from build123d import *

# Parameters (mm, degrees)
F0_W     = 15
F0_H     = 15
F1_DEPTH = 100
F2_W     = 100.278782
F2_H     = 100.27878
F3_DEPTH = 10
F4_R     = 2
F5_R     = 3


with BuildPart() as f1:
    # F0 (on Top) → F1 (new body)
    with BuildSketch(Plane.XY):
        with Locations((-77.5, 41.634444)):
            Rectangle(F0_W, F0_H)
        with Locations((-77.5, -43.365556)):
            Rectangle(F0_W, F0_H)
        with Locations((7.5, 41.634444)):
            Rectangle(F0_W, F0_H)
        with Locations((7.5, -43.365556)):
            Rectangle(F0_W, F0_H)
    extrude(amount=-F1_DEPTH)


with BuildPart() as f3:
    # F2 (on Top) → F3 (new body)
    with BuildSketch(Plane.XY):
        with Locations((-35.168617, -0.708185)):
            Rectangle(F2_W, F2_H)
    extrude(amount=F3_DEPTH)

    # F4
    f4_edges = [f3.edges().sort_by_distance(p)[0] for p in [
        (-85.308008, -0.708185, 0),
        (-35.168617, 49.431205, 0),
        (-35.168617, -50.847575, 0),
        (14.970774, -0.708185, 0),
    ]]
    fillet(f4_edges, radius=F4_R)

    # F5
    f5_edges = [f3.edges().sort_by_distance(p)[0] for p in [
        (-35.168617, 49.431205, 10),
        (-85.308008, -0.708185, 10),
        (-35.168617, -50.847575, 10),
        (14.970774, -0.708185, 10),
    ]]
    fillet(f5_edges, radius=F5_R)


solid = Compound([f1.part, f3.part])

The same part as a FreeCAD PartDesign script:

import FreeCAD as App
import Part
import Sketcher
from FreeCAD import Vector


def edges_at(feature, points):
    """Names of the edges that pass closest to the given points."""
    edges = feature.Shape.Edges
    near = lambda p: min(range(len(edges)), key=lambda i: edges[i].distToShape(Part.Vertex(*p))[0])
    return sorted({f"Edge{near(p) + 1}" for p in points})

doc = App.newDocument("Part")
body = doc.addObject("PartDesign::Body", "Body")
body.AllowCompound = True

sketch1 = doc.addObject("Sketcher::SketchObject", "Sketch")
body.addObject(sketch1)
sketch1.AttachmentSupport = (doc.XY_Plane, [""])
sketch1.MapMode = "FlatFace"
sketch1.addGeometry([
    Part.LineSegment(Vector(-85, 49, 0), Vector(-85, 34, 0)),
    Part.LineSegment(Vector(-85, 34, 0), Vector(-70, 34, 0)),
    Part.LineSegment(Vector(-70, 34, 0), Vector(-70, 49, 0)),
    Part.LineSegment(Vector(-70, 49, 0), Vector(-85, 49, 0)),
    Part.LineSegment(Vector(-85, -36, 0), Vector(-85, -51, 0)),
    Part.LineSegment(Vector(-85, -51, 0), Vector(-70, -51, 0)),
    Part.LineSegment(Vector(-70, -51, 0), Vector(-70, -36, 0)),
    Part.LineSegment(Vector(-70, -36, 0), Vector(-85, -36, 0)),
    Part.LineSegment(Vector(0, 49, 0), Vector(0, 34, 0)),
    Part.LineSegment(Vector(0, 34, 0), Vector(15, 34, 0)),
    Part.LineSegment(Vector(15, 34, 0), Vector(15, 49, 0)),
    Part.LineSegment(Vector(15, 49, 0), Vector(0, 49, 0)),
    Part.LineSegment(Vector(0, -36, 0), Vector(0, -51, 0)),
    Part.LineSegment(Vector(0, -51, 0), Vector(15, -51, 0)),
    Part.LineSegment(Vector(15, -51, 0), Vector(15, -36, 0)),
    Part.LineSegment(Vector(15, -36, 0), Vector(0, -36, 0)),
], False)
sketch1.addConstraint([
    Sketcher.Constraint("Coincident", 0, 2, 1, 1),
    Sketcher.Constraint("Coincident", 1, 2, 2, 1),
    Sketcher.Constraint("Coincident", 2, 2, 3, 1),
    Sketcher.Constraint("Coincident", 3, 2, 0, 1),
    Sketcher.Constraint("Coincident", 4, 2, 5, 1),
    Sketcher.Constraint("Coincident", 5, 2, 6, 1),
    Sketcher.Constraint("Coincident", 6, 2, 7, 1),
    Sketcher.Constraint("Coincident", 7, 2, 4, 1),
    Sketcher.Constraint("Coincident", 8, 2, 9, 1),
    Sketcher.Constraint("Coincident", 9, 2, 10, 1),
    Sketcher.Constraint("Coincident", 10, 2, 11, 1),
    Sketcher.Constraint("Coincident", 11, 2, 8, 1),
    Sketcher.Constraint("Coincident", 12, 2, 13, 1),
    Sketcher.Constraint("Coincident", 13, 2, 14, 1),
    Sketcher.Constraint("Coincident", 14, 2, 15, 1),
    Sketcher.Constraint("Coincident", 15, 2, 12, 1),
    Sketcher.Constraint("Vertical", 0),
    Sketcher.Constraint("Horizontal", 1),
    Sketcher.Constraint("Vertical", 2),
    Sketcher.Constraint("Horizontal", 3),
    Sketcher.Constraint("Vertical", 4),
    Sketcher.Constraint("Horizontal", 5),
    Sketcher.Constraint("Vertical", 6),
    Sketcher.Constraint("Horizontal", 7),
    Sketcher.Constraint("Vertical", 8),
    Sketcher.Constraint("Horizontal", 9),
    Sketcher.Constraint("Vertical", 10),
    Sketcher.Constraint("Horizontal", 11),
    Sketcher.Constraint("Vertical", 12),
    Sketcher.Constraint("Horizontal", 13),
    Sketcher.Constraint("Vertical", 14),
    Sketcher.Constraint("Horizontal", 15),
    Sketcher.Constraint("PointOnObject", 8, 2, -2),
    Sketcher.Constraint("PointOnObject", 12, 2, -2),
    Sketcher.Constraint("Horizontal", 1, 2, 8, 2),
    Sketcher.Constraint("Horizontal", 3, 2, 10, 2),
    Sketcher.Constraint("Horizontal", 5, 2, 12, 2),
    Sketcher.Constraint("Horizontal", 7, 2, 14, 2),
    Sketcher.Constraint("Vertical", 3, 2, 4, 2),
    Sketcher.Constraint("Vertical", 2, 2, 5, 2),
    Sketcher.Constraint("Vertical", 10, 2, 13, 2),
    Sketcher.Constraint("Equal", 7, 9),
    Sketcher.Constraint("Equal", 15, 0),
    Sketcher.Constraint("Equal", 2, 4),
    Sketcher.Constraint("DistanceX", 1, 1, 1, 2, 15.0),
    Sketcher.Constraint("DistanceX", 0, 2, -1, 1, 85.0),
    Sketcher.Constraint("DistanceY", 4, 2, 0, 2, 85.0),
    Sketcher.Constraint("DistanceY", -1, 1, 0, 2, 34.134444),
])
pad1 = doc.addObject("PartDesign::Pad", "Pad")
body.addObject(pad1)
pad1.Profile = sketch1
pad1.Length = 100
pad1.Reversed = True
body2 = doc.addObject("PartDesign::Body", "Body001")

sketch2 = doc.addObject("Sketcher::SketchObject", "Sketch001")
body2.addObject(sketch2)
sketch2.AttachmentSupport = (doc.getObject("XY_Plane001"), [""])
sketch2.MapMode = "FlatFace"
sketch2.addGeometry([
    Part.LineSegment(Vector(-85, 49, 0), Vector(-85, -51, 0)),
    Part.LineSegment(Vector(-85, -51, 0), Vector(15, -51, 0)),
    Part.LineSegment(Vector(15, -51, 0), Vector(15, 49, 0)),
    Part.LineSegment(Vector(15, 49, 0), Vector(-85, 49, 0)),
], False)
sketch2.addConstraint([
    Sketcher.Constraint("Coincident", 0, 2, 1, 1),
    Sketcher.Constraint("Coincident", 1, 2, 2, 1),
    Sketcher.Constraint("Coincident", 2, 2, 3, 1),
    Sketcher.Constraint("Coincident", 3, 2, 0, 1),
    Sketcher.Constraint("Vertical", 0),
    Sketcher.Constraint("Horizontal", 1),
    Sketcher.Constraint("Vertical", 2),
    Sketcher.Constraint("Horizontal", 3),
    Sketcher.Constraint("DistanceY", 0, 2, 0, 1, 100.27878),
    Sketcher.Constraint("DistanceX", 1, 1, 1, 2, 100.278782),
    Sketcher.Constraint("DistanceX", 0, 2, -1, 1, 85.308008),
    Sketcher.Constraint("DistanceY", 0, 2, -1, 1, 50.847575),
])
pad2 = doc.addObject("PartDesign::Pad", "Pad001")
body2.addObject(pad2)
pad2.Profile = sketch2
pad2.Length = 10
doc.recompute()

fillet = doc.addObject("PartDesign::Fillet", "Fillet")
body2.addObject(fillet)
fillet.Base = (pad2, edges_at(pad2, [
    (-85.308, -0.708, 0),
    (-35.169, 49.431, 0),
    (-35.169, -50.848, 0),
    (14.971, -0.708, 0),
]))
fillet.Radius = 2
doc.recompute()

fillet2 = doc.addObject("PartDesign::Fillet", "Fillet001")
body2.addObject(fillet2)
fillet2.Base = (fillet, edges_at(fillet, [
    (-35.169, 49.431, 10),
    (-85.308, -0.708, 10),
    (-35.169, -50.848, 10),
    (14.971, -0.708, 10),
]))
fillet2.Radius = 3

doc.recompute()
